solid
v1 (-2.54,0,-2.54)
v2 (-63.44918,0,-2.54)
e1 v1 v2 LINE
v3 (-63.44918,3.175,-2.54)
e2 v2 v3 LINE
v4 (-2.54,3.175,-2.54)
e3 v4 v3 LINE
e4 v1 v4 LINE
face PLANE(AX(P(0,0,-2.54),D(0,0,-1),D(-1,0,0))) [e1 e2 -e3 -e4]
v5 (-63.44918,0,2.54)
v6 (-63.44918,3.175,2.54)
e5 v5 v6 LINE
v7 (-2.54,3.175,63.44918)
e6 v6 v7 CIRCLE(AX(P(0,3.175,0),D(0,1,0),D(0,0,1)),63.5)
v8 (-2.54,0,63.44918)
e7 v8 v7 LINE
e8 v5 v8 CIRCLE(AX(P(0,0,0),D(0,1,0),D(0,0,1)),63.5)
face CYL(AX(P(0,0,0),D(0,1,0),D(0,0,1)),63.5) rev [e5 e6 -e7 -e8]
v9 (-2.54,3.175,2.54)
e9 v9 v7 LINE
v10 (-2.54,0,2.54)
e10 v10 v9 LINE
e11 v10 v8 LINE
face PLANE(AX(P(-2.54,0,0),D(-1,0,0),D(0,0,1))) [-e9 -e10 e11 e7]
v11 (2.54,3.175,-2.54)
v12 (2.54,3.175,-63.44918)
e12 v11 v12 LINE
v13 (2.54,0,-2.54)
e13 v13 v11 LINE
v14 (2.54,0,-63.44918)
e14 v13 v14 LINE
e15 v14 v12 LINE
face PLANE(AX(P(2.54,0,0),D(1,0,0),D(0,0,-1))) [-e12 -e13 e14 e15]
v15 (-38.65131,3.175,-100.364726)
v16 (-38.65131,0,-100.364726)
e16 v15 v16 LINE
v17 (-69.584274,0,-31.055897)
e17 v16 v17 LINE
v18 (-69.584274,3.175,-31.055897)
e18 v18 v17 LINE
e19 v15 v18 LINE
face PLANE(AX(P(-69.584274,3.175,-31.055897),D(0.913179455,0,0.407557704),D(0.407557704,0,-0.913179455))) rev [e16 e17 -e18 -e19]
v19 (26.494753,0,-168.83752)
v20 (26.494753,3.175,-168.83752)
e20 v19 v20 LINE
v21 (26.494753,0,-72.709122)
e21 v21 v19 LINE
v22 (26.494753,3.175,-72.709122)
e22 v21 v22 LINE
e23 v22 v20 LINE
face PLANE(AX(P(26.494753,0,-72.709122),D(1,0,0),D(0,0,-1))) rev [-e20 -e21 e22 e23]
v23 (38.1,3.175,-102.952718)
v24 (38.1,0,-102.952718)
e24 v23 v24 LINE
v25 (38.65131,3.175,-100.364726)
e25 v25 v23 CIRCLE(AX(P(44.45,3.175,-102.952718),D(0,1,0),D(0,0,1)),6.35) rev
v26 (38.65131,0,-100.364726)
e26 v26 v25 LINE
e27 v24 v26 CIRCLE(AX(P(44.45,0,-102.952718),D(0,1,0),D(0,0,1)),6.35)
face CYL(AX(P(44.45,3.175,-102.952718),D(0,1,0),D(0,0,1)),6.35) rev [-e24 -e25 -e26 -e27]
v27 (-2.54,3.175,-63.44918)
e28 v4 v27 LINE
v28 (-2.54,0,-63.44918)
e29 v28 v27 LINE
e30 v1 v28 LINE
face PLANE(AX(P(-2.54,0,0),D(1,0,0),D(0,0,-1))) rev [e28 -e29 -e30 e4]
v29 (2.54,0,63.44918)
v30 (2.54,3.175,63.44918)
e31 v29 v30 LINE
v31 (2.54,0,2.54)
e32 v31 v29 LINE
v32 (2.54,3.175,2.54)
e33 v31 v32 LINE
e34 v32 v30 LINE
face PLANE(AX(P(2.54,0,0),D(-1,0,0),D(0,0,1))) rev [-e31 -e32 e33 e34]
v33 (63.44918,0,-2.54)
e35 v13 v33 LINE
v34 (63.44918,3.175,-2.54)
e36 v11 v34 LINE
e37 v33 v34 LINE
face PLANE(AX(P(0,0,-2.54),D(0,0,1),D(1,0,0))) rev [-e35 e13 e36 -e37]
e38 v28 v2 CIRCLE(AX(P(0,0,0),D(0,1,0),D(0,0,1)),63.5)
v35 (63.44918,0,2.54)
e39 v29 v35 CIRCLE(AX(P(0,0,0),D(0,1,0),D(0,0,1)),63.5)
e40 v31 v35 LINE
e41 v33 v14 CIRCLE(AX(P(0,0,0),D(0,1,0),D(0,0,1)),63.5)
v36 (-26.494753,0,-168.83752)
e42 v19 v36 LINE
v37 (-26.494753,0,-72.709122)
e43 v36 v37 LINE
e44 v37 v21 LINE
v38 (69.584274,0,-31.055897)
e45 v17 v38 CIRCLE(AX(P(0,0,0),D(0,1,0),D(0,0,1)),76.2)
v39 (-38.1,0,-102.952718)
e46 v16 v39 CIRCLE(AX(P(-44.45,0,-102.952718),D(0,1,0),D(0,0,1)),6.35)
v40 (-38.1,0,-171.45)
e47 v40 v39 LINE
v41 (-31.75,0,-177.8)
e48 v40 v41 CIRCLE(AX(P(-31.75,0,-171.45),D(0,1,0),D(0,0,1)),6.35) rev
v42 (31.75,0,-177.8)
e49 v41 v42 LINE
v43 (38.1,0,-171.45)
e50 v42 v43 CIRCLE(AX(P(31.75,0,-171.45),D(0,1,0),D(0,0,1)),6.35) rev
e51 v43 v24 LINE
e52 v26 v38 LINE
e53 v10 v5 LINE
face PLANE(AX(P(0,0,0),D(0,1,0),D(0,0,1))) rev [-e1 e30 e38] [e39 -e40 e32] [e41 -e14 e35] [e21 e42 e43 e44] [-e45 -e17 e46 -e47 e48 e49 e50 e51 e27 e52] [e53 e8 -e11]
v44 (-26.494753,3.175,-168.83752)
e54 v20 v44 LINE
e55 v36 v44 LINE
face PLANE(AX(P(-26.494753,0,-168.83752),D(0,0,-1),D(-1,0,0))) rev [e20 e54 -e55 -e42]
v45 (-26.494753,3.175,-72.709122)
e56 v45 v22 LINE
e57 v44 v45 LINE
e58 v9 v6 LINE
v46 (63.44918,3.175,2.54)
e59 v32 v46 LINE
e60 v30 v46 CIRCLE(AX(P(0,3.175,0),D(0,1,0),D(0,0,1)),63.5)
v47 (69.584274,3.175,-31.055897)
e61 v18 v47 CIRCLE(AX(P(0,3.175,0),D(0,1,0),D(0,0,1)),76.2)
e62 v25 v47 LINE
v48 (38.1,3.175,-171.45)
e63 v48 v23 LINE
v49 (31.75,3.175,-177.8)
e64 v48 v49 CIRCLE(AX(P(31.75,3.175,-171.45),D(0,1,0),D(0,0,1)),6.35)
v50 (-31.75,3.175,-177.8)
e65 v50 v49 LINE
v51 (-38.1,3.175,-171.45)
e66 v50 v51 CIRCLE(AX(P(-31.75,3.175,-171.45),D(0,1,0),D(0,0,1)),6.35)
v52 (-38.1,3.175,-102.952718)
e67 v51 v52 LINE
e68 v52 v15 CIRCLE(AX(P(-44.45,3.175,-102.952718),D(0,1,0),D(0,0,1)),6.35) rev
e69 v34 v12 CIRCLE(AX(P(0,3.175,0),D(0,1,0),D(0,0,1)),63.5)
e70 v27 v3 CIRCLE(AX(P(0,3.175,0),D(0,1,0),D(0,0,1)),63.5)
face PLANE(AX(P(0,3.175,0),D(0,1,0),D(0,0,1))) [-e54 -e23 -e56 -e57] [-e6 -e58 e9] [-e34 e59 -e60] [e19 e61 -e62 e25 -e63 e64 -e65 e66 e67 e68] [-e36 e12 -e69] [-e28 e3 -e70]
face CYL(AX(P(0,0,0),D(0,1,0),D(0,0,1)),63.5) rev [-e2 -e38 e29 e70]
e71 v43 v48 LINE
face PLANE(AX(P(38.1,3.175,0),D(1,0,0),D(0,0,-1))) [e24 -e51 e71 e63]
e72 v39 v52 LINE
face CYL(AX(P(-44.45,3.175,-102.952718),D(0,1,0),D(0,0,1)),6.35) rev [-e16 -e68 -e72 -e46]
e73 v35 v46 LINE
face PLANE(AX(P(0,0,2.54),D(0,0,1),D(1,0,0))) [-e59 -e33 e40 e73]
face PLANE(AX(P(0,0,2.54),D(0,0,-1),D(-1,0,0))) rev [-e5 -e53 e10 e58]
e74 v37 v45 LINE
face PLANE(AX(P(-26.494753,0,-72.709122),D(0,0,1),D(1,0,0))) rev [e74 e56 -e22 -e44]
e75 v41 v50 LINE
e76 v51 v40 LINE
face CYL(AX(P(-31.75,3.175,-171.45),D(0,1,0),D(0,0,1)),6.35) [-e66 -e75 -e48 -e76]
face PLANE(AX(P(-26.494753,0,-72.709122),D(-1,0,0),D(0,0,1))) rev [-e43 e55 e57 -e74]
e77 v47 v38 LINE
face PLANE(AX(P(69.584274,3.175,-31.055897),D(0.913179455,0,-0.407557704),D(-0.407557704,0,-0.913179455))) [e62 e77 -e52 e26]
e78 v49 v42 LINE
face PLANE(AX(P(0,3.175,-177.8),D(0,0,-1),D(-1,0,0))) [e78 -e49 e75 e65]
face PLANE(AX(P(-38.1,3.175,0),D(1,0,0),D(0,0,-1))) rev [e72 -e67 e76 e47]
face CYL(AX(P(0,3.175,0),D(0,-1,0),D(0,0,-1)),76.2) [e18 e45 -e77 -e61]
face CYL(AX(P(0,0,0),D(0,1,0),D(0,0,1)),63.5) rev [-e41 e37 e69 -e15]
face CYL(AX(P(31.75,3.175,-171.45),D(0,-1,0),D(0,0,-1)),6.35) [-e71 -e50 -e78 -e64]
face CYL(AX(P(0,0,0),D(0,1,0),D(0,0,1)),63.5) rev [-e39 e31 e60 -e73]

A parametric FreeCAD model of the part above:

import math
import FreeCAD as App
import Part
import Sketcher
from FreeCAD import Vector
Q = App.Units.Quantity


def edges_at(feature, points):
    """Names of the edges that pass closest to the given points."""
    edges = feature.Shape.Edges
    near = lambda p: min(range(len(edges)), key=lambda i: edges[i].distToShape(Part.Vertex(*p))[0])
    return sorted({f"Edge{near(p) + 1}" for p in points})

doc = App.newDocument("Part")
params = doc.addObject("Spreadsheet::Sheet", "Params")
for row, (alias, value) in enumerate([
    ("sketch1_radius", "3 in"),
    ("sketch1_width", "3 in"),
    ("pad1_length", "0.125 in"),
    ("fillet_radius", "0.25 in"),
    ("sketch2_radius", "2.5 in"),
    ("pocket1_length", "0.125 in"),
    ("pocket2_length", "0.125 in"),
], start=1):
    params.set(f"A{row}", alias)
    params.set(f"B{row}", "=" + value)
    params.setAlias(f"B{row}", alias)

body = doc.addObject("PartDesign::Body", "Body")

# Sketch on XZ plane
sketch1 = body.newObject("Sketcher::SketchObject", "Sketch")
sketch1.AttachmentSupport = (doc.getObject("XZ_Plane"), [""])
sketch1.MapMode = "FlatFace"
sketch1.addGeometry(Part.LineSegment(Vector(69.584275, -31.055897, 0), Vector(38.1, -101.6, 0)), False)
sketch1.addGeometry(Part.LineSegment(Vector(38.1, -101.6, 0), Vector(38.1, -177.8, 0)), False)
sketch1.addGeometry(Part.LineSegment(Vector(38.1, -177.8, 0), Vector(-38.1, -177.8, 0)), False)
sketch1.addGeometry(Part.LineSegment(Vector(-38.1, -177.8, 0), Vector(-38.1, -101.6, 0)), False)
sketch1.addGeometry(Part.LineSegment(Vector(-38.1, -101.6, 0), Vector(-69.584275, -31.055897, 0)), False)
sketch1.addGeometry(Part.ArcOfCircle(Part.Circle(Vector(0, 0, 0), Vector(0, 0, 1), 76.2), math.radians(-24.051506), math.radians(204.051506)), False)
sketch1.addConstraint(Sketcher.Constraint("Coincident", 0, 2, 1, 1))
sketch1.addConstraint(Sketcher.Constraint("Coincident", 1, 2, 2, 1))
sketch1.addConstraint(Sketcher.Constraint("Coincident", 2, 2, 3, 1))
sketch1.addConstraint(Sketcher.Constraint("Coincident", 3, 2, 4, 1))
sketch1.addConstraint(Sketcher.Constraint("Tangent", 4, 2, 5, 2))
sketch1.addConstraint(Sketcher.Constraint("Tangent", 5, 1, 0, 1))
sketch1.addConstraint(Sketcher.Constraint("Vertical", 1))
sketch1.addConstraint(Sketcher.Constraint("Horizontal", 2))
sketch1.addConstraint(Sketcher.Constraint("Vertical", 3))
sketch1.addConstraint(Sketcher.Constraint("Coincident", 5, 3, -1, 1))
sketch1.addConstraint(Sketcher.Constraint("Symmetric", 0, 2, 3, 2, -2))
sketch1.addConstraint(Sketcher.Constraint("Equal", 2, 1))
sketch1.addConstraint(Sketcher.Constraint("Radius", 5, Q("3 in")))
sketch1.addConstraint(Sketcher.Constraint("DistanceX", 2, 2, 2, 1, Q("3 in")))
sketch1.addConstraint(Sketcher.Constraint("DistanceY", 0, 2, -1, 1, Q("4 in")))
sketch1.setExpression("Constraints[12]", "Params.sketch1_radius")
sketch1.setExpression("Constraints[13]", "Params.sketch1_width")
pad1 = body.newObject("PartDesign::Pad", "Pad")
pad1.Profile = sketch1
pad1.setExpression("Length", "Params.pad1_length")
pad1.Reversed = True
doc.recompute()

fillet = body.newObject("PartDesign::Fillet", "Fillet")
fillet.Base = (pad1, edges_at(pad1, [
    (-38.1, 1.587, -101.6),
    (-38.1, 1.587, -177.8),
    (38.1, 1.587, -177.8),
    (38.1, 1.587, -101.6),
]))
fillet.setExpression("Radius", "Params.fillet_radius")

# Sketch on XZ plane
sketch2 = body.newObject("Sketcher::SketchObject", "Sketch001")
sketch2.AttachmentSupport = (doc.getObject("XZ_Plane"), [""])
sketch2.MapMode = "FlatFace"
sketch2.AttachmentOffset = App.Placement(Vector(0, 0, -0.125 * 25.4), App.Rotation())
sketch2.addGeometry(Part.LineSegment(Vector(-63.44918, -2.54, 0), Vector(-2.54, -2.54, 0)), False)
sketch2.addGeometry(Part.LineSegment(Vector(-2.54, -2.54, 0), Vector(-2.54, -63.44918, 0)), False)
sketch2.addGeometry(Part.ArcOfCircle(Part.Circle(Vector(0, 0, 0), Vector(0, 0, 1), 63.5), math.radians(-177.707557), math.radians(-92.292443)), False)
sketch2.addGeometry(Part.LineSegment(Vector(2.54, -63.44918, 0), Vector(2.54, -2.54, 0)), False)
sketch2.addGeometry(Part.LineSegment(Vector(2.54, -2.54, 0), Vector(63.44918, -2.54, 0)), False)
sketch2.addGeometry(Part.ArcOfCircle(Part.Circle(Vector(0, 0, 0), Vector(0, 0, 1), 63.5), math.radians(-87.707557), math.radians(-2.292443)), False)
sketch2.addGeometry(Part.LineSegment(Vector(63.44918, 2.54, 0), Vector(2.54, 2.54, 0)), False)
sketch2.addGeometry(Part.LineSegment(Vector(2.54, 2.54, 0), Vector(2.54, 63.44918, 0)), False)
sketch2.addGeometry(Part.ArcOfCircle(Part.Circle(Vector(0, 0, 0), Vector(0, 0, 1), 63.5), math.radians(2.292443), math.radians(87.707557)), False)
sketch2.addGeometry(Part.LineSegment(Vector(-2.54, 63.44918, 0), Vector(-2.54, 2.54, 0)), False)
sketch2.addGeometry(Part.LineSegment(Vector(-2.54, 2.54, 0), Vector(-63.44918, 2.54, 0)), False)
sketch2.addGeometry(Part.ArcOfCircle(Part.Circle(Vector(0, 0, 0), Vector(0, 0, 1), 63.5), math.radians(92.292443), math.radians(177.707557)), False)
sketch2.addConstraint(Sketcher.Constraint("Coincident", 0, 2, 1, 1))
sketch2.addConstraint(Sketcher.Constraint("Coincident", 1, 2, 2, 2))
sketch2.addConstraint(Sketcher.Constraint("Coincident", 2, 1, 0, 1))
sketch2.addConstraint(Sketcher.Constraint("Coincident", 3, 2, 4, 1))
sketch2.addConstraint(Sketcher.Constraint("Coincident", 4, 2, 5, 2))
sketch2.addConstraint(Sketcher.Constraint("Coincident", 5, 1, 3, 1))
sketch2.addConstraint(Sketcher.Constraint("Coincident", 6, 2, 7, 1))
sketch2.addConstraint(Sketcher.Constraint("Coincident", 7, 2, 8, 2))
sketch2.addConstraint(Sketcher.Constraint("Coincident", 8, 1, 6, 1))
sketch2.addConstraint(Sketcher.Constraint("Coincident", 9, 2, 10, 1))
sketch2.addConstraint(Sketcher.Constraint("Coincident", 10, 2, 11, 2))
sketch2.addConstraint(Sketcher.Constraint("Coincident", 11, 1, 9, 1))
sketch2.addConstraint(Sketcher.Constraint("Horizontal", 0))
sketch2.addConstraint(Sketcher.Constraint("Vertical", 1))
sketch2.addConstraint(Sketcher.Constraint("Vertical", 3))
sketch2.addConstraint(Sketcher.Constraint("Horizontal", 4))
sketch2.addConstraint(Sketcher.Constraint("Horizontal", 6))
sketch2.addConstraint(Sketcher.Constraint("Vertical", 7))
sketch2.addConstraint(Sketcher.Constraint("Vertical", 9))
sketch2.addConstraint(Sketcher.Constraint("Horizontal", 10))
sketch2.addConstraint(Sketcher.Constraint("Coincident", 2, 3, -1, 1))
sketch2.addConstraint(Sketcher.Constraint("Coincident", 5, 3, -1, 1))
sketch2.addConstraint(Sketcher.Constraint("Coincident", 8, 3, -1, 1))
sketch2.addConstraint(Sketcher.Constraint("Coincident", 11, 3, -1, 1))
sketch2.addConstraint(Sketcher.Constraint("Equal", 2, 5))
sketch2.addConstraint(Sketcher.Constraint("Equal", 5, 8))
sketch2.addConstraint(Sketcher.Constraint("Equal", 8, 11))
sketch2.addConstraint(Sketcher.Constraint("Symmetric", 0, 2, 6, 2, -1, 1))
sketch2.addConstraint(Sketcher.Constraint("Symmetric", 3, 2, 9, 2, -1, 1))
sketch2.addConstraint(Sketcher.Constraint("Symmetric", 0, 2, 3, 2, -2))
sketch2.addConstraint(Sketcher.Constraint("Equal", 10, 1))
sketch2.addConstraint(Sketcher.Constraint("Radius", 2, Q("2.5 in")))
sketch2.addConstraint(Sketcher.Constraint("DistanceX", 0, 2, -1, 1, Q("0.1 in")))
sketch2.setExpression("Constraints[31]", "Params.sketch2_radius")
pocket1 = body.newObject("PartDesign::Pocket", "Pocket")
pocket1.Profile = sketch2
pocket1.setExpression("Length", "Params.pocket1_length")
pocket1.Reversed = True

# Sketch on XZ plane
sketch3 = body.newObject("Sketcher::SketchObject", "Sketch002")
sketch3.AttachmentSupport = (doc.getObject("XZ_Plane"), [""])
sketch3.MapMode = "FlatFace"
sketch3.AttachmentOffset = App.Placement(Vector(0, 0, -0.125 * 25.4), App.Rotation())
sketch3.addGeometry(Part.LineSegment(Vector(-26.494753, -168.83752, 0), Vector(-26.494753, -72.709122, 0)), False)
sketch3.addGeometry(Part.LineSegment(Vector(-26.494753, -72.709122, 0), Vector(26.494753, -72.709122, 0)), False)
sketch3.addGeometry(Part.LineSegment(Vector(26.494753, -72.709122, 0), Vector(26.494753, -168.83752, 0)), False)
sketch3.addGeometry(Part.LineSegment(Vector(26.494753, -168.83752, 0), Vector(-26.494753, -168.83752, 0)), False)
sketch3.addConstraint(Sketcher.Constraint("Coincident", 0, 2, 1, 1))
sketch3.addConstraint(Sketcher.Constraint("Coincident", 1, 2, 2, 1))
sketch3.addConstraint(Sketcher.Constraint("Coincident", 2, 2, 3, 1))
sketch3.addConstraint(Sketcher.Constraint("Coincident", 3, 2, 0, 1))
sketch3.addConstraint(Sketcher.Constraint("Vertical", 0))
sketch3.addConstraint(Sketcher.Constraint("Horizontal", 1))
sketch3.addConstraint(Sketcher.Constraint("Vertical", 2))
sketch3.addConstraint(Sketcher.Constraint("Horizontal", 3))
sketch3.addConstraint(Sketcher.Constraint("DistanceX", 1, 1, 1, 2, 52.989505))
sketch3.addConstraint(Sketcher.Constraint("DistanceY", 0, 1, 0, 2, 96.128397))
sketch3.addConstraint(Sketcher.Constraint("DistanceY", 2, 2, -1, 1, 168.83752))
sketch3.addConstraint(Sketcher.Constraint("DistanceX", 0, 2, -1, 1, 26.494753))
pocket2 = body.newObject("PartDesign::Pocket", "Pocket001")
pocket2.Profile = sketch3
pocket2.setExpression("Length", "Params.pocket2_length")
pocket2.Reversed = True

doc.recompute()
